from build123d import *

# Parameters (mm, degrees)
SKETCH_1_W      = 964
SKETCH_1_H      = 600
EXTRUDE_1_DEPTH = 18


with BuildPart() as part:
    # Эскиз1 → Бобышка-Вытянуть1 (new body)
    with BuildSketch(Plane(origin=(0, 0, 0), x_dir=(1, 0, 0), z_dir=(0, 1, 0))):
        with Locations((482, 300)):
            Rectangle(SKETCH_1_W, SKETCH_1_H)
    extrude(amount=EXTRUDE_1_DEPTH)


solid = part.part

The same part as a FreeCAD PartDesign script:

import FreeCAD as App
import Part
import Sketcher

doc = App.newDocument("Part")
params = doc.addObject("Spreadsheet::Sheet", "Params")
for row, (alias, value) in enumerate([
    ("sketch1_width", "964 mm"),
    ("sketch1_height", "600 mm"),
    ("pad1_length", "18 mm"),
], start=1):
    params.set(f"A{row}", alias)
    params.set(f"B{row}", "=" + value)
    params.setAlias(f"B{row}", alias)

body = doc.addObject("PartDesign::Body", "Body")

sketch1 = doc.addObject("Sketcher::SketchObject", "Sketch")
body.addObject(sketch1)
sketch1.AttachmentSupport = (doc.XZ_Plane, [""])
sketch1.MapMode = "FlatFace"
sketch1.addGeometry(Part.LineSegment(App.Vector(0, -600, 0), App.Vector(0, 0, 0)), False)
sketch1.addGeometry(Part.LineSegment(App.Vector(0, 0, 0), App.Vector(964, 0, 0)), False)
sketch1.addGeometry(Part.LineSegment(App.Vector(964, 0, 0), App.Vector(964, -600, 0)), False)
sketch1.addGeometry(Part.LineSegment(App.Vector(964, -600, 0), App.Vector(0, -600, 0)), False)
sketch1.addConstraint(Sketcher.Constraint("Coincident", 0, 2, 1, 1))
sketch1.addConstraint(Sketcher.Constraint("Coincident", 1, 2, 2, 1))
sketch1.addConstraint(Sketcher.Constraint("Coincident", 2, 2, 3, 1))
sketch1.addConstraint(Sketcher.Constraint("Coincident", 3, 2, 0, 1))
sketch1.addConstraint(Sketcher.Constraint("Vertical", 0))
sketch1.addConstraint(Sketcher.Constraint("Horizontal", 1))
sketch1.addConstraint(Sketcher.Constraint("Vertical", 2))
sketch1.addConstraint(Sketcher.Constraint("Horizontal", 3))
sketch1.addConstraint(Sketcher.Constraint("Coincident", 0, 2, -1, 1))
sketch1.addConstraint(Sketcher.Constraint("DistanceX", 1, 1, 1, 2, 964.0))
sketch1.addConstraint(Sketcher.Constraint("DistanceY", 0, 1, 0, 2, 600.0))
sketch1.setExpression("Constraints[9]", "Params.sketch1_width")
sketch1.setExpression("Constraints[10]", "Params.sketch1_height")
pad1 = doc.addObject("PartDesign::Pad", "Pad")
body.addObject(pad1)
pad1.Profile = sketch1
pad1.setExpression("Length", "Params.pad1_length")
pad1.Reversed = True

doc.recompute()
